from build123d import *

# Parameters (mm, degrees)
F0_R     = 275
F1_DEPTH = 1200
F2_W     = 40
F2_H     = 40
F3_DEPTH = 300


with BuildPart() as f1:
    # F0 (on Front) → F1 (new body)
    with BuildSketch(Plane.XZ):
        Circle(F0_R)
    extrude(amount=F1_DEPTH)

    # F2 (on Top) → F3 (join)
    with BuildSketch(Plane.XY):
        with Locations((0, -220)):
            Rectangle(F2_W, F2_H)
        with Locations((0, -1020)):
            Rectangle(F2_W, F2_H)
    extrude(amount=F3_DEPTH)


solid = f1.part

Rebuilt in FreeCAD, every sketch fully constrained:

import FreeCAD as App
import Part
import Sketcher

V = App.Vector


def add_polygon(sketch, points):
    """Adds a closed chain of lines whose ends are joined by coincident constraints."""
    first, n = sketch.GeometryCount, len(points)
    for a, b in zip(points, points[1:] + points[:1]):
        sketch.addGeometry(Part.LineSegment(App.Vector(*a, 0), App.Vector(*b, 0)), False)
    for i in range(n):
        sketch.addConstraint(Sketcher.Constraint("Coincident", first + i, 2, first + (i + 1) % n, 1))

doc = App.newDocument("Part")
body = doc.addObject("PartDesign::Body", "Body")

sketch1 = body.newObject("Sketcher::SketchObject", "Sketch")
sketch1.AttachmentSupport = (doc.getObject("XZ_Plane"), [""])
sketch1.MapMode = "FlatFace"
sketch1.addGeometry(Part.Circle(V(0, 0, 0), V(0, 0, 1), 275), False)
sketch1.addConstraint(Sketcher.Constraint("Coincident", 0, 3, -1, 1))
sketch1.addConstraint(Sketcher.Constraint("Diameter", 0, 550.0))
pad1 = body.newObject("PartDesign::Pad", "Pad")
pad1.Profile = sketch1
pad1.Length = 1200

sketch2 = body.newObject("Sketcher::SketchObject", "Sketch001")
sketch2.AttachmentSupport = (doc.getObject("XY_Plane"), [""])
sketch2.MapMode = "FlatFace"
add_polygon(sketch2, [(-20, -200), (-20, -240), (20, -240), (20, -200)])
add_polygon(sketch2, [(-20, -1000), (-20, -1040), (20, -1040), (20, -1000)])
sketch2.addConstraint(Sketcher.Constraint("Vertical", 0))
sketch2.addConstraint(Sketcher.Constraint("Horizontal", 1))
sketch2.addConstraint(Sketcher.Constraint("Vertical", 2))
sketch2.addConstraint(Sketcher.Constraint("Horizontal", 3))
sketch2.addConstraint(Sketcher.Constraint("Vertical", 4))
sketch2.addConstraint(Sketcher.Constraint("Horizontal", 5))
sketch2.addConstraint(Sketcher.Constraint("Vertical", 6))
sketch2.addConstraint(Sketcher.Constraint("Horizontal", 7))
sketch2.addConstraint(Sketcher.Constraint("Vertical", 3, 2, 4, 2))
sketch2.addConstraint(Sketcher.Constraint("Vertical", 2, 2, 5, 2))
sketch2.addConstraint(Sketcher.Constraint("Equal", 7, 0))
sketch2.addConstraint(Sketcher.Constraint("Equal", 2, 4))
sketch2.addConstraint(Sketcher.Constraint("DistanceX", 1, 1, 1, 2, 40.0))
sketch2.addConstraint(Sketcher.Constraint("DistanceX", 0, 2, -1, 1, 20.0))
sketch2.addConstraint(Sketcher.Constraint("DistanceY", 0, 2, -1, 1, 240.0))
sketch2.addConstraint(Sketcher.Constraint("DistanceY", 4, 2, -1, 1, 1040.0))
pad2 = body.newObject("PartDesign::Pad", "Pad001")
pad2.Profile = sketch2
pad2.Length = 300

doc.recompute()
